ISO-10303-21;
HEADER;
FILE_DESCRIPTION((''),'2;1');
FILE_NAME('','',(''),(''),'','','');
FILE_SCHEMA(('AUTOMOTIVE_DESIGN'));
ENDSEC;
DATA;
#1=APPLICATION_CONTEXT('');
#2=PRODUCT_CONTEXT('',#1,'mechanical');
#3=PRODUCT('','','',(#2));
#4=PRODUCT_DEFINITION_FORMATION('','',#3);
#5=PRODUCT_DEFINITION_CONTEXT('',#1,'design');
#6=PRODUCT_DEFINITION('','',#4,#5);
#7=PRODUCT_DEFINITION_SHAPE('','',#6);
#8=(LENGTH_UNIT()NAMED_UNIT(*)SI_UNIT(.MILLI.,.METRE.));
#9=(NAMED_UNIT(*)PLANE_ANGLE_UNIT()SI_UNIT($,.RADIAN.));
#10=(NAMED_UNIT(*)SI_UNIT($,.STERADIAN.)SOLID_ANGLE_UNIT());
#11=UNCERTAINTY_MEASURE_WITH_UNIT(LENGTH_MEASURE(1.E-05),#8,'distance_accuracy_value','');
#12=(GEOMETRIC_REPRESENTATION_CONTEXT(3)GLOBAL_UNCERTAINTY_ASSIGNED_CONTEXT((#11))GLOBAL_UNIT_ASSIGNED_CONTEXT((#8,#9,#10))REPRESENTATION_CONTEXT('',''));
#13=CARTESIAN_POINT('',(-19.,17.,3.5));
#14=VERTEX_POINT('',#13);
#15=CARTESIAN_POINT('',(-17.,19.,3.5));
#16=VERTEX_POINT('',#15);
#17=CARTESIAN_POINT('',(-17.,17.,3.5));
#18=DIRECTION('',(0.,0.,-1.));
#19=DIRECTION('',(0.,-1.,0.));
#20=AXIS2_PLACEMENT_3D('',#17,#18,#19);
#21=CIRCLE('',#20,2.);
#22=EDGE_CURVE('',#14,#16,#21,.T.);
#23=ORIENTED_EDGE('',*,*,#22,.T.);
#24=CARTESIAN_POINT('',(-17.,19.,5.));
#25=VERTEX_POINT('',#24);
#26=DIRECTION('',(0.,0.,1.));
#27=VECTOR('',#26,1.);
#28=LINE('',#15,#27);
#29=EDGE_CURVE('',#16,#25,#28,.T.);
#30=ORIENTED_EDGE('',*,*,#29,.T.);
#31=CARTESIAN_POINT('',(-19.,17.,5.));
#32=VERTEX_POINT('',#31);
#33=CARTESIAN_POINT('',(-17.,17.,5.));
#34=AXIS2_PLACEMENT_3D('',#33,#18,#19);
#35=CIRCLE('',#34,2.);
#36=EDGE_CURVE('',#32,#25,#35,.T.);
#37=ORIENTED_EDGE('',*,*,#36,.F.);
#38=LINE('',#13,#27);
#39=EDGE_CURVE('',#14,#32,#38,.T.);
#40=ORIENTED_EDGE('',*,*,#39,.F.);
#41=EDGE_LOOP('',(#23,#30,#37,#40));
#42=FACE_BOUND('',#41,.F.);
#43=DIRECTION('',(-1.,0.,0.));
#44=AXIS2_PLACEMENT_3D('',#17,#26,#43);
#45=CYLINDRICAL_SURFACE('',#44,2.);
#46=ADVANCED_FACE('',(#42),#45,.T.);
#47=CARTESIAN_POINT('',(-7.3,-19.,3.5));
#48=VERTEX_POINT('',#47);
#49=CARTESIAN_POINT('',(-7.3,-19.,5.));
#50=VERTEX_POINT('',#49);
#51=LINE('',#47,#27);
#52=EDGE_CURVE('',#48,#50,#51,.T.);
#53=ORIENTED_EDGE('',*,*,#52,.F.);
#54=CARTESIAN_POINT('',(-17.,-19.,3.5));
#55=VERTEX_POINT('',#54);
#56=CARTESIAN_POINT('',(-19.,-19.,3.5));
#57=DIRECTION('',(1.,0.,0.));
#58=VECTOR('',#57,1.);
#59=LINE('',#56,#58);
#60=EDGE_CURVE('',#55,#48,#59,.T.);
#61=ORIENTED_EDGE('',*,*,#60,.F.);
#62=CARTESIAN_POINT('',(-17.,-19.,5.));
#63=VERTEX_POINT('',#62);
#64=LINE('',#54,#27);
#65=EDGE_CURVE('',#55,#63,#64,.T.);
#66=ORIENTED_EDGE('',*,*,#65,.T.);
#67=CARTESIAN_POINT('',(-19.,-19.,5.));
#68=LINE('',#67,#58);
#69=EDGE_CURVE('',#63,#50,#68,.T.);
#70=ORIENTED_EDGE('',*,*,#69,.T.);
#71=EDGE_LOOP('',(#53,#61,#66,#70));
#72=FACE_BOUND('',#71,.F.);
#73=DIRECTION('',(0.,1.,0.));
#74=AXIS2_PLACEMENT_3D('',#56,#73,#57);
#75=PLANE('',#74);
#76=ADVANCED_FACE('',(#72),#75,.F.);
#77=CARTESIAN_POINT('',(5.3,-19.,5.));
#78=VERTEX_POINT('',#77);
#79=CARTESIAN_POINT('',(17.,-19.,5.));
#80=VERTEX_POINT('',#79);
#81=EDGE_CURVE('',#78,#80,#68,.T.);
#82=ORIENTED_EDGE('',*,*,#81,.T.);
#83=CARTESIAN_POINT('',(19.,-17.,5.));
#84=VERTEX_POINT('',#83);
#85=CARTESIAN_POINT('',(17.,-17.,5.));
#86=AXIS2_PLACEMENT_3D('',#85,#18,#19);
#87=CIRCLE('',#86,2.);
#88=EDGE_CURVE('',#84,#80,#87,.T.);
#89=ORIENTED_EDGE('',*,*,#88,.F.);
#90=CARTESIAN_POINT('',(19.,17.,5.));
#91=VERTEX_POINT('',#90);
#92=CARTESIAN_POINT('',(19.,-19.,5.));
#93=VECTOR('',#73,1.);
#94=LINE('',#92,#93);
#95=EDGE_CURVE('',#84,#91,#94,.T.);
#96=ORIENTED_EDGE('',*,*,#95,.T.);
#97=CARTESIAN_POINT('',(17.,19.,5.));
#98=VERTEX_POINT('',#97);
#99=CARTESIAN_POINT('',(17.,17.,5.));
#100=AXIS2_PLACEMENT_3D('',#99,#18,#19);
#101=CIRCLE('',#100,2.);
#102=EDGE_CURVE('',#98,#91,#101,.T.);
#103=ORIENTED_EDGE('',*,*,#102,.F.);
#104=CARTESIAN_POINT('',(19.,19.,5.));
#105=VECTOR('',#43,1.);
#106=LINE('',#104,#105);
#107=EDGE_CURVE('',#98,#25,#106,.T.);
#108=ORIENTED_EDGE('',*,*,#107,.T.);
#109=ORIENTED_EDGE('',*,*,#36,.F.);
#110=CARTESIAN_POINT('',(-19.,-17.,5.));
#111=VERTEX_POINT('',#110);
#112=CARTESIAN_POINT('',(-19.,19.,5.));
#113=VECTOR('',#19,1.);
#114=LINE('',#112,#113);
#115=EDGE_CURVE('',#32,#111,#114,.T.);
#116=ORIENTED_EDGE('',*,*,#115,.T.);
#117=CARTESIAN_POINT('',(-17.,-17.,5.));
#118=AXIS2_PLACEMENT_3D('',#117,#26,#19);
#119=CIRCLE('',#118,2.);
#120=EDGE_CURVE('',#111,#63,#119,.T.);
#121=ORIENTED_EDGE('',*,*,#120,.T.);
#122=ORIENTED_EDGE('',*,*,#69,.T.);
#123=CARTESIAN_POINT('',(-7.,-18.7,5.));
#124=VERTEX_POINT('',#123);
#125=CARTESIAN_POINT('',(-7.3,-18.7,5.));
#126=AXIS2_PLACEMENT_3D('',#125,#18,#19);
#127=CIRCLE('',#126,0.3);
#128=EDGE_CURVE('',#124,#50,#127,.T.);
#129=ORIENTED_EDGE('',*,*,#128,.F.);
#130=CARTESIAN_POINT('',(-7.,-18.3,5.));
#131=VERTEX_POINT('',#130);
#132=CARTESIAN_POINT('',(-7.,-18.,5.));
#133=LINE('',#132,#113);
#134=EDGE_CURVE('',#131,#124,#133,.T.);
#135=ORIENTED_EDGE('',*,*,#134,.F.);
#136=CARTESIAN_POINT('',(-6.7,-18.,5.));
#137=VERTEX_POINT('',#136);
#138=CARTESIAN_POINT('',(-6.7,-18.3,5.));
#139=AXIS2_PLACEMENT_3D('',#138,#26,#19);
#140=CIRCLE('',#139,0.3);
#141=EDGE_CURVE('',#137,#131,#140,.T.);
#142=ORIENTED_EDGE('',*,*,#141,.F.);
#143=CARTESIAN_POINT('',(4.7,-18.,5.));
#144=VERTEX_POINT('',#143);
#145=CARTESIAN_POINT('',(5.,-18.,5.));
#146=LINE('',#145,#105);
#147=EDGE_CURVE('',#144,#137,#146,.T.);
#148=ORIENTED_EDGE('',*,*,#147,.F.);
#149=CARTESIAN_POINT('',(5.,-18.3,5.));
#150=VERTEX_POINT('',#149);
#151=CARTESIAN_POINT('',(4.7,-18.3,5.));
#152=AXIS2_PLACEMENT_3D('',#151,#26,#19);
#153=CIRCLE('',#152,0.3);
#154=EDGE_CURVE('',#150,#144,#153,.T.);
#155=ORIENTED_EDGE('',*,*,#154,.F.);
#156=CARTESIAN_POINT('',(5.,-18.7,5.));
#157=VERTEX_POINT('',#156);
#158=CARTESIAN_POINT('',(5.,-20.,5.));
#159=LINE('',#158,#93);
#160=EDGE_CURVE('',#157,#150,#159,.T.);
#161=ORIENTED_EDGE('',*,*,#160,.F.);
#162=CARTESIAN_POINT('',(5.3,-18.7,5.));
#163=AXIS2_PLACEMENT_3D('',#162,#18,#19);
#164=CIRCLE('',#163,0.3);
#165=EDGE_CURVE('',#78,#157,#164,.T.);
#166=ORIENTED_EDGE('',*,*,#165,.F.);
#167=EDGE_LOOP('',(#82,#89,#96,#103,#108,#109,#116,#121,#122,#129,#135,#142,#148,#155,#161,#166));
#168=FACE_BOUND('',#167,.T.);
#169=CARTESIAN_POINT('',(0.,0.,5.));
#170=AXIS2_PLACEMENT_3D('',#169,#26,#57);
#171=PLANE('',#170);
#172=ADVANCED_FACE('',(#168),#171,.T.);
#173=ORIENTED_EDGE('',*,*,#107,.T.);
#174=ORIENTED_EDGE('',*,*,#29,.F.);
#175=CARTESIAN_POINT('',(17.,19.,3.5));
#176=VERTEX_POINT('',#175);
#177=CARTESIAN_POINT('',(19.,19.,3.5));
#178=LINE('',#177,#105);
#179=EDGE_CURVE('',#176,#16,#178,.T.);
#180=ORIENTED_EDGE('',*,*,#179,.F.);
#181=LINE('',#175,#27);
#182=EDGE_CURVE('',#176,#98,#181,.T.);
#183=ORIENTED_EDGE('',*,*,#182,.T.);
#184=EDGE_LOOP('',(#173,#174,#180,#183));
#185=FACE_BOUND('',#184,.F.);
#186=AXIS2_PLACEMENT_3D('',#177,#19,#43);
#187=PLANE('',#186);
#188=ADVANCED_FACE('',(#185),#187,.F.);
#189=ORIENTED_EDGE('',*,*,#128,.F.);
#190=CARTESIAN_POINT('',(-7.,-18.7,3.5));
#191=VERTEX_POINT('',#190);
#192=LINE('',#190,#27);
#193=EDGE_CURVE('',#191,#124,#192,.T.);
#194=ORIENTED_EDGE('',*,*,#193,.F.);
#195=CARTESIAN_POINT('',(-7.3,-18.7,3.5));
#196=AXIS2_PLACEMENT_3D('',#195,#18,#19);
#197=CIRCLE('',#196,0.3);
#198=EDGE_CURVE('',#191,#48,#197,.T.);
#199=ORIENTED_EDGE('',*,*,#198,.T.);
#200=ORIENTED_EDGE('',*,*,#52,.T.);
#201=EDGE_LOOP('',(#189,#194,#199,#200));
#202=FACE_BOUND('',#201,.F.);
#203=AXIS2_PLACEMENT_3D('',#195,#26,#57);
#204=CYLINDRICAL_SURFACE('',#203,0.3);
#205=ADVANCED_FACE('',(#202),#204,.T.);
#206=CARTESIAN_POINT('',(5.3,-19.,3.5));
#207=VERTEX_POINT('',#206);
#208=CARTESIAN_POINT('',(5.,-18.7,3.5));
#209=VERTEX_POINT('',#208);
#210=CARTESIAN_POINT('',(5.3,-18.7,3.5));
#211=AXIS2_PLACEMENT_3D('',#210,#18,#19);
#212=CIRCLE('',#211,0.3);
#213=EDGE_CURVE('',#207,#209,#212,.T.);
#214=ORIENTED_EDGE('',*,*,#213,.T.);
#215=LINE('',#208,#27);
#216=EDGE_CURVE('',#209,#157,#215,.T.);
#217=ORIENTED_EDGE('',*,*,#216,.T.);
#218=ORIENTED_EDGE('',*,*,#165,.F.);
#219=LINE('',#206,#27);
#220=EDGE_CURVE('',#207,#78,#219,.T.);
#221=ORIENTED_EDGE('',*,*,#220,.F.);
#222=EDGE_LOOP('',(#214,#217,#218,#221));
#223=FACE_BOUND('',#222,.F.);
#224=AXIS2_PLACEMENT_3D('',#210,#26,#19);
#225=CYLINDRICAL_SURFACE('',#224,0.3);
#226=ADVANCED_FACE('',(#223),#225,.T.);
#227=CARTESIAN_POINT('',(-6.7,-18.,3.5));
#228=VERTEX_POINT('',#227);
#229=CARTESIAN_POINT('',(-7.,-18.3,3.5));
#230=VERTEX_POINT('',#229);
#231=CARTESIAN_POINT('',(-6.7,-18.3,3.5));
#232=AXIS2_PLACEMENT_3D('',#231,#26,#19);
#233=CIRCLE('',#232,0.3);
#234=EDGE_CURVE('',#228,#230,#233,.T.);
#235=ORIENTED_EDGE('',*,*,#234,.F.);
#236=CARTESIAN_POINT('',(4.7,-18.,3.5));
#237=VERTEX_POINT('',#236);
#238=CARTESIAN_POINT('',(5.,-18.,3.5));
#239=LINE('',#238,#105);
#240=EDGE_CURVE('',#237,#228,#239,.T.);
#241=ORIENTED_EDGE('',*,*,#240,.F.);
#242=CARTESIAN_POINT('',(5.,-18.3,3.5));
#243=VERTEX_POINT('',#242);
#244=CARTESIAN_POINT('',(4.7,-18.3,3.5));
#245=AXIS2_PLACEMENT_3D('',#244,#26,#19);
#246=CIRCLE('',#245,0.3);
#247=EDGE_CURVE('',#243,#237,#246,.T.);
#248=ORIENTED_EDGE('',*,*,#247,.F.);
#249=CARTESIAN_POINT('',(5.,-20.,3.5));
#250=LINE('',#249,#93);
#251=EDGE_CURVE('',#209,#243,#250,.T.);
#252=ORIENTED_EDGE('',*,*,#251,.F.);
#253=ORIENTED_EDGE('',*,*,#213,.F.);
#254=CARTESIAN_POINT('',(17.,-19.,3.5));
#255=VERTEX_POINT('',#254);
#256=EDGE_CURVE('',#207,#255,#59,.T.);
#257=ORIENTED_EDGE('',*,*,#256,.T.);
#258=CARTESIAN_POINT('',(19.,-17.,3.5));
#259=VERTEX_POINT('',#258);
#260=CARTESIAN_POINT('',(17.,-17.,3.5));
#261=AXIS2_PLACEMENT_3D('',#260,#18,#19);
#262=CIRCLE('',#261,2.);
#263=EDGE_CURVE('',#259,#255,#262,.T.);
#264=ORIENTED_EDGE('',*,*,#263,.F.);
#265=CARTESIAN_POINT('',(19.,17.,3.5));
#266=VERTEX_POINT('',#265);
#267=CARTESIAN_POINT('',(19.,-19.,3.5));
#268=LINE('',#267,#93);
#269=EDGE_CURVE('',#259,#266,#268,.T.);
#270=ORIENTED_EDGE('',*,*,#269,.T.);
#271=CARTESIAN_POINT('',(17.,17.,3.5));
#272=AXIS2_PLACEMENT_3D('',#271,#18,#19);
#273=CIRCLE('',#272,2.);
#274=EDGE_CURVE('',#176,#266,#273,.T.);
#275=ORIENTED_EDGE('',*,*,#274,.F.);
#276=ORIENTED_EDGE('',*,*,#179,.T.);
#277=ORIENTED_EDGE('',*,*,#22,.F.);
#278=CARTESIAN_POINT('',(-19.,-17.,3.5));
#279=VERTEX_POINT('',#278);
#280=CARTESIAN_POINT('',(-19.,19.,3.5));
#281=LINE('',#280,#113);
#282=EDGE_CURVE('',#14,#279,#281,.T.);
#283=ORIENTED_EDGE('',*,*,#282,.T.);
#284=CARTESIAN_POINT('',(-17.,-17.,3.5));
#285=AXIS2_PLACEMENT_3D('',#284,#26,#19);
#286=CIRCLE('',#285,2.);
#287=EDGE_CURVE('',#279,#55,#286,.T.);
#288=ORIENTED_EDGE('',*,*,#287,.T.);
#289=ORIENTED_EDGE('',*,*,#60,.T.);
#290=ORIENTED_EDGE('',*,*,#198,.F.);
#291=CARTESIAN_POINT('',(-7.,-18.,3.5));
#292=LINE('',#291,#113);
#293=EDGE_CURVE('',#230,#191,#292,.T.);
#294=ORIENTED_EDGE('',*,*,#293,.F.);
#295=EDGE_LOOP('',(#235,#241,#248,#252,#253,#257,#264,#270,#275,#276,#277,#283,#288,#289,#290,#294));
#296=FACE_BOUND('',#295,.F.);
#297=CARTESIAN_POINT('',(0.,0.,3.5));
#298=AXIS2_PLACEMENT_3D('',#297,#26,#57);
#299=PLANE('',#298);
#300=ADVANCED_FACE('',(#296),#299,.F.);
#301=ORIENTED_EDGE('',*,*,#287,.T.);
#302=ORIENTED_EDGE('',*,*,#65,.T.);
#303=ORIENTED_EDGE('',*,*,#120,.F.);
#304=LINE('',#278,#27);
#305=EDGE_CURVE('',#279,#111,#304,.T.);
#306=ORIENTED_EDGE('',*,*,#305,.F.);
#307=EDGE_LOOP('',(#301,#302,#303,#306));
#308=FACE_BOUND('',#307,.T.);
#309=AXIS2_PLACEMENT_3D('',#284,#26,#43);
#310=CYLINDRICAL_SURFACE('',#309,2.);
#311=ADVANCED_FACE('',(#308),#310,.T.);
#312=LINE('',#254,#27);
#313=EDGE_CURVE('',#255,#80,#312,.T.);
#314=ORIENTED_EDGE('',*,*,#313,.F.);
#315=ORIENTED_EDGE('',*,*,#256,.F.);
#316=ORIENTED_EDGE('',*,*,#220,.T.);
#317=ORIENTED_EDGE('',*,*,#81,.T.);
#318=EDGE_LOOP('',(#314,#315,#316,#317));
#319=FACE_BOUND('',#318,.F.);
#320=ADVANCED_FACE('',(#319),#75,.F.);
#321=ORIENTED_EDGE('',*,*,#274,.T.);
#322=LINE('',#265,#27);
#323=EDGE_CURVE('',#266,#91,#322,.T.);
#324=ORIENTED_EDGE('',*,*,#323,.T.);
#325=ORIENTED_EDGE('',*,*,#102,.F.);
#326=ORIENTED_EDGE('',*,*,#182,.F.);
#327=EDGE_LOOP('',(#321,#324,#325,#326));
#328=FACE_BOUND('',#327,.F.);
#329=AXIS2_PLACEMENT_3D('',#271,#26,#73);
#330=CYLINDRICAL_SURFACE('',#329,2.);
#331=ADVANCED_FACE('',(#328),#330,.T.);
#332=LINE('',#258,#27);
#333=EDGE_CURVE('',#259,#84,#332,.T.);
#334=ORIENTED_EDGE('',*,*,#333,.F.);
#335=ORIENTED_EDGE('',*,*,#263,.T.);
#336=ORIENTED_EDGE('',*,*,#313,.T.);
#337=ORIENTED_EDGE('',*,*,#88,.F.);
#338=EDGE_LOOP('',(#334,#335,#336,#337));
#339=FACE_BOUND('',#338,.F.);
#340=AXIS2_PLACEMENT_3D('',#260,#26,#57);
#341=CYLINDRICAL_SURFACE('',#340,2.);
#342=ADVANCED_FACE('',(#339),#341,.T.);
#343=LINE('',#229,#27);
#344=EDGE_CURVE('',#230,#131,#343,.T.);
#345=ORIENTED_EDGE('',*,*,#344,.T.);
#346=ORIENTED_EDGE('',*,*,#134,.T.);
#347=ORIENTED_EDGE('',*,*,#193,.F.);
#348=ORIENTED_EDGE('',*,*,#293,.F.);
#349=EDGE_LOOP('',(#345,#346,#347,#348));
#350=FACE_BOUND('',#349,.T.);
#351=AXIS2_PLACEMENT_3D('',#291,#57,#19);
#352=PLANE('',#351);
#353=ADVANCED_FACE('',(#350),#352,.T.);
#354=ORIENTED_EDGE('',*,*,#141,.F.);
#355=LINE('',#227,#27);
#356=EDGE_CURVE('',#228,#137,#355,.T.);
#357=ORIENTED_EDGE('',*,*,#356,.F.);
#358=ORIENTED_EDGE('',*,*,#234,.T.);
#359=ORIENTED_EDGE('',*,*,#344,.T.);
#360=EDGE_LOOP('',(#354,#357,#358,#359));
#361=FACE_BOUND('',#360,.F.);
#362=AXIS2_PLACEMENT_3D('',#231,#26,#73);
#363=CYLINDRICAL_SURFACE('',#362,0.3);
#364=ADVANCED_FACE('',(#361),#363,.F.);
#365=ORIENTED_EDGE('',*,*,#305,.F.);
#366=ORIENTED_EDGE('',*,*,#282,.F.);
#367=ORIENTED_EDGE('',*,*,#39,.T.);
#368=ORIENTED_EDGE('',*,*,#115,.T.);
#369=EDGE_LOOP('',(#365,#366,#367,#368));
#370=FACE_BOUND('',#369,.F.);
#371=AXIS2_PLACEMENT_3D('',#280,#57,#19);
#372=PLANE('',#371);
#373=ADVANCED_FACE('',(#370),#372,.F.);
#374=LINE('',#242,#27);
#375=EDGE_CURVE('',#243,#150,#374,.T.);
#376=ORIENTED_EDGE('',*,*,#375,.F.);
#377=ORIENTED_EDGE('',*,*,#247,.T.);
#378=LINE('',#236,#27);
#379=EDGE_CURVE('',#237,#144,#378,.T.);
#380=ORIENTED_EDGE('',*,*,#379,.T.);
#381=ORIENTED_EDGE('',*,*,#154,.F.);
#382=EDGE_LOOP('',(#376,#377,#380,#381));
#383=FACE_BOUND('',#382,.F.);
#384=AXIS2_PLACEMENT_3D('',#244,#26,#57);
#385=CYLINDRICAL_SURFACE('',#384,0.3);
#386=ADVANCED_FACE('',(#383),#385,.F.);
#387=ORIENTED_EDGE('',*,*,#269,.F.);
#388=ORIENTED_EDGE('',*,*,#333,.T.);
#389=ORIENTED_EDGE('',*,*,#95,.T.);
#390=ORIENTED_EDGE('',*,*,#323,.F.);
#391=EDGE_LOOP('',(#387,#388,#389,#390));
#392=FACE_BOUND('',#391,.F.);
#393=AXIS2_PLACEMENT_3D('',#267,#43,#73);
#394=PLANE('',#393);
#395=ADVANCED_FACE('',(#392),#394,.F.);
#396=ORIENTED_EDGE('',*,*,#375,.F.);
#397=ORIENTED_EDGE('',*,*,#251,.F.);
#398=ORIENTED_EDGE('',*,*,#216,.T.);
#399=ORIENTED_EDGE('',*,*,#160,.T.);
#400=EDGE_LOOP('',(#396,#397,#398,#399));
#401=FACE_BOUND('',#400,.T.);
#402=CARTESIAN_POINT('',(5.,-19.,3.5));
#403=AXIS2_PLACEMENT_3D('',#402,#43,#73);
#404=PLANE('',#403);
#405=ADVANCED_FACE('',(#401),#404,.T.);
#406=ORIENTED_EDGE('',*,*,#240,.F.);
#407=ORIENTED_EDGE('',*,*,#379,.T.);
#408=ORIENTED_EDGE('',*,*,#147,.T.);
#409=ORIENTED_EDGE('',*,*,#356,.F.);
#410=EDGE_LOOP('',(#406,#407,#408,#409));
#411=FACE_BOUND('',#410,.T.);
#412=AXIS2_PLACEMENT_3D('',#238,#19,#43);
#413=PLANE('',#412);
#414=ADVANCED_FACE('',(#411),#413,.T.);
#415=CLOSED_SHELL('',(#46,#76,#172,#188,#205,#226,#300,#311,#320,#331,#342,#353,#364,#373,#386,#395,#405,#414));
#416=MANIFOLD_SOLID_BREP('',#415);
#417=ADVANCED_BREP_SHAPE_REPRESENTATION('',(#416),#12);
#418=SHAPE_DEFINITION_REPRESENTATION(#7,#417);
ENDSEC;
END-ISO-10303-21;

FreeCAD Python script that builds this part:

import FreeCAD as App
import Part
import Sketcher


def edges_at(feature, points):
    """Names of the edges that pass closest to the given points."""
    edges = feature.Shape.Edges
    near = lambda p: min(range(len(edges)), key=lambda i: edges[i].distToShape(Part.Vertex(*p))[0])
    return sorted({f"Edge{near(p) + 1}" for p in points})


def add_polygon(sketch, points):
    """Adds a closed chain of lines whose ends are joined by coincident constraints."""
    first, n = sketch.GeometryCount, len(points)
    for a, b in zip(points, points[1:] + points[:1]):
        sketch.addGeometry(Part.LineSegment(App.Vector(*a, 0), App.Vector(*b, 0)), False)
    for i in range(n):
        sketch.addConstraint(Sketcher.Constraint("Coincident", first + i, 2, first + (i + 1) % n, 1))

doc = App.newDocument("Part")
body = doc.addObject("PartDesign::Body", "Body")

# Sketch on XY plane
sketch1 = doc.addObject("Sketcher::SketchObject", "Sketch")
body.addObject(sketch1)
sketch1.AttachmentSupport = (doc.XY_Plane, [""])
sketch1.MapMode = "FlatFace"
sketch1.AttachmentOffset = App.Placement(App.Vector(0, 0, 3.5), App.Rotation())
add_polygon(sketch1, [(-19, 19), (-19, -19), (19, -19), (19, 19)])  # lines 0-3
sketch1.addConstraint([
    Sketcher.Constraint("Vertical", 0),
    Sketcher.Constraint("Horizontal", 1),
    Sketcher.Constraint("Vertical", 2),
    Sketcher.Constraint("Horizontal", 3),
    Sketcher.Constraint("Symmetric", 0, 2, 2, 2, -1, 1),
    Sketcher.Constraint("Equal", 3, 0),
    Sketcher.Constraint("DistanceX", 1, 1, 1, 2, 38.0),
])
pad1 = doc.addObject("PartDesign::Pad", "Pad")
body.addObject(pad1)
pad1.Profile = sketch1
pad1.Length = 1.5
doc.recompute()

fillet = doc.addObject("PartDesign::Fillet", "Fillet")
body.addObject(fillet)
fillet.Base = (pad1, edges_at(pad1, [
    (19, -19, 4.25),
    (19, 19, 4.25),
    (-19, 19, 4.25),
    (-19, -19, 4.25),
]))
fillet.Radius = 2

# Sketch on XY plane
sketch2 = doc.addObject("Sketcher::SketchObject", "Sketch001")
body.addObject(sketch2)
sketch2.AttachmentSupport = (doc.XY_Plane, [""])
sketch2.MapMode = "FlatFace"
sketch2.AttachmentOffset = App.Placement(App.Vector(0, 0, 3.5), App.Rotation())
add_polygon(sketch2, [(5, -19), (-7, -19), (-7, -18), (5, -18)])  # lines 0-3
sketch2.addConstraint([
    Sketcher.Constraint("Horizontal", 0),
    Sketcher.Constraint("Vertical", 1),
    Sketcher.Constraint("Horizontal", 2),
    Sketcher.Constraint("Vertical", 3),
    Sketcher.Constraint("DistanceX", 0, 2, 0, 1, 12.0),
    Sketcher.Constraint("DistanceY", 1, 1, 1, 2, 1.0),
    Sketcher.Constraint("DistanceX", 0, 2, -1, 1, 7.0),
    Sketcher.Constraint("DistanceY", 0, 2, -1, 1, 19.0),
])
pocket1 = doc.addObject("PartDesign::Pocket", "Pocket")
body.addObject(pocket1)
pocket1.Profile = sketch2
pocket1.Length = 1.5
pocket1.Reversed = True
doc.recompute()

fillet2 = doc.addObject("PartDesign::Fillet", "Fillet001")
body.addObject(fillet2)
fillet2.Base = (pocket1, edges_at(pocket1, [
    (-7, -19, 4.25),
    (-7, -18, 4.25),
    (5, -19, 4.25),
    (5, -18, 4.25),
]))
fillet2.Radius = 0.3

doc.recompute()
